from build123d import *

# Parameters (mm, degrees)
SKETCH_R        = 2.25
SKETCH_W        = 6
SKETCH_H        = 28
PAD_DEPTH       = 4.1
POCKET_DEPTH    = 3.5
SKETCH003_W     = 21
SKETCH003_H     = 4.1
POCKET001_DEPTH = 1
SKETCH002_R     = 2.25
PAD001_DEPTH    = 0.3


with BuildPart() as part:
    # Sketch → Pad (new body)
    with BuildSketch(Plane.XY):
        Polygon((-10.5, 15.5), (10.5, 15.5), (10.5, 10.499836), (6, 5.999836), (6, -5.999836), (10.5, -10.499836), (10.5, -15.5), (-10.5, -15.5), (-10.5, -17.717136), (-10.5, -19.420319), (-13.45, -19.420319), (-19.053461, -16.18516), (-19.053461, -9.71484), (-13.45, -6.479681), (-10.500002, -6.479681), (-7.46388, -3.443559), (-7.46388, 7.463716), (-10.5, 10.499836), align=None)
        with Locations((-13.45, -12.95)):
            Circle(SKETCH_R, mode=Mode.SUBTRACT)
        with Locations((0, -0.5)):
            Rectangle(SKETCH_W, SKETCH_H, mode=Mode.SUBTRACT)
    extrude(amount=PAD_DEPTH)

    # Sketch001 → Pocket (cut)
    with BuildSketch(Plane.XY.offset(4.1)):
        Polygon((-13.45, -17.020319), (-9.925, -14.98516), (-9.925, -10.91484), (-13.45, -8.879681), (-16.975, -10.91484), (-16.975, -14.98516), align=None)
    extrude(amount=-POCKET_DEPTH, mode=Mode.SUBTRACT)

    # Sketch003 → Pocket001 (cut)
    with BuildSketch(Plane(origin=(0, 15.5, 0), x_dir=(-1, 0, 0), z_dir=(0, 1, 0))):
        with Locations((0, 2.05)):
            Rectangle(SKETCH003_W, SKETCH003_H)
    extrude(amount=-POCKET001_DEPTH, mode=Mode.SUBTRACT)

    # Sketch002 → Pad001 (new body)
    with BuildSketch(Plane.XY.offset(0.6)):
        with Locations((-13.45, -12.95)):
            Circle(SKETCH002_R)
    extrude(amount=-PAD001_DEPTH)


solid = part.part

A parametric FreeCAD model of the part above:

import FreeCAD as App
import Part
import Sketcher

V = App.Vector
Q = App.Units.Quantity

doc = App.newDocument("Part")
body = doc.addObject("PartDesign::Body", "Body")

# Sketch on XY plane
sketch1 = doc.addObject("Sketcher::SketchObject", "Sketch")
body.addObject(sketch1)
sketch1.AttachmentSupport = (doc.XY_Plane, [""])
sketch1.MapMode = "FlatFace"
sketch1.addGeometry([
    Part.LineSegment(V(10.5, 15.5, 0), V(-10.5, 15.5, 0)),  # 0
    Part.LineSegment(V(-10.5, 15.5, 0), V(-10.5, 10.5, 0)),  # 1
    Part.LineSegment(V(-10.5, 10.5, 0), V(-7.5, 7.5, 0)),  # 2
    Part.LineSegment(V(-7.5, 7.5, 0), V(-7.5, -3.4, 0)),  # 3
    Part.LineSegment(V(-7.5, -3.4, 0), V(-10.5, -6.5, 0)),  # 4
    Part.LineSegment(V(-10.5, -6.5, 0), V(-13.4, -6.5, 0)),  # 5
    Part.LineSegment(V(-13.4, -6.5, 0), V(-19.1, -9.7, 0)),  # 6
    Part.LineSegment(V(-19.1, -9.7, 0), V(-19.1, -16.2, 0)),  # 7
    Part.LineSegment(V(-19.1, -16.2, 0), V(-13.4, -19.4, 0)),  # 8
    Part.LineSegment(V(-13.4, -19.4, 0), V(-10.5, -19.4, 0)),  # 9
    Part.LineSegment(V(-10.5, -19.4, 0), V(-10.5, -15.5, 0)),  # 10
    Part.LineSegment(V(-10.5, -15.5, 0), V(10.5, -15.5, 0)),  # 11
    Part.LineSegment(V(10.5, -15.5, 0), V(10.5, -10.5, 0)),  # 12
    Part.LineSegment(V(10.5, -10.5, 0), V(6, -6, 0)),  # 13
    Part.LineSegment(V(6, -6, 0), V(6, 6, 0)),  # 14
    Part.LineSegment(V(6, 6, 0), V(10.5, 10.5, 0)),  # 15
    Part.LineSegment(V(10.5, 10.5, 0), V(10.5, 15.5, 0)),  # 16
    Part.Circle(V(-13.4, -12.9, 0), V(0, 0, 1), 2.2),  # 17
    Part.LineSegment(V(-3, -14.5, 0), V(-3, 13.5, 0)),  # 18
    Part.LineSegment(V(-3, 13.5, 0), V(3, 13.5, 0)),  # 19
    Part.LineSegment(V(3, 13.5, 0), V(3, -14.5, 0)),  # 20
    Part.LineSegment(V(3, -14.5, 0), V(-3, -14.5, 0)),  # 21
], False)
sketch1.addConstraint([
    Sketcher.Constraint("Coincident", 0, 2, 1, 1),
    Sketcher.Constraint("Coincident", 1, 2, 2, 1),
    Sketcher.Constraint("Coincident", 2, 2, 3, 1),
    Sketcher.Constraint("Coincident", 3, 2, 4, 1),
    Sketcher.Constraint("Coincident", 4, 2, 5, 1),
    Sketcher.Constraint("Coincident", 5, 2, 6, 1),
    Sketcher.Constraint("Coincident", 6, 2, 7, 1),
    Sketcher.Constraint("Coincident", 7, 2, 8, 1),
    Sketcher.Constraint("Coincident", 8, 2, 9, 1),
    Sketcher.Constraint("Coincident", 9, 2, 10, 1),
    Sketcher.Constraint("Coincident", 10, 2, 11, 1),
    Sketcher.Constraint("Coincident", 11, 2, 12, 1),
    Sketcher.Constraint("Coincident", 12, 2, 13, 1),
    Sketcher.Constraint("Coincident", 13, 2, 14, 1),
    Sketcher.Constraint("Coincident", 14, 2, 15, 1),
    Sketcher.Constraint("Coincident", 15, 2, 16, 1),
    Sketcher.Constraint("Coincident", 16, 2, 0, 1),
    Sketcher.Constraint("Coincident", 18, 2, 19, 1),
    Sketcher.Constraint("Coincident", 19, 2, 20, 1),
    Sketcher.Constraint("Coincident", 20, 2, 21, 1),
    Sketcher.Constraint("Coincident", 21, 2, 18, 1),
    Sketcher.Constraint("Horizontal", 0),
    Sketcher.Constraint("Vertical", 1),
    Sketcher.Constraint("Vertical", 3),
    Sketcher.Constraint("Horizontal", 5),
    Sketcher.Constraint("Vertical", 7),
    Sketcher.Constraint("Horizontal", 9),
    Sketcher.Constraint("Vertical", 10),
    Sketcher.Constraint("Horizontal", 11),
    Sketcher.Constraint("Vertical", 12),
    Sketcher.Constraint("Vertical", 14),
    Sketcher.Constraint("Vertical", 16),
    Sketcher.Constraint("Vertical", 18),
    Sketcher.Constraint("Horizontal", 19),
    Sketcher.Constraint("Vertical", 20),
    Sketcher.Constraint("Horizontal", 21),
    Sketcher.Constraint("Symmetric", 0, 2, 11, 2, -1, 1),
    Sketcher.Constraint("Symmetric", 1, 2, 15, 2, -2),
    Sketcher.Constraint("Perpendicular", 2, 4),
    Sketcher.Constraint("Perpendicular", 4, 13),
    Sketcher.Constraint("Perpendicular", 13, 15),
    Sketcher.Constraint("Vertical", 17, 3, 5, 2),
    Sketcher.Constraint("Vertical", 5, 2, 8, 2),
    Sketcher.Constraint("Vertical", 1, 2, 9, 2),
    Sketcher.Constraint("Equal", 1, 12),
    Sketcher.Constraint("Equal", 6, 8),
    Sketcher.Constraint("Equal", 13, 15),
    Sketcher.Constraint("Diameter", 17, 4.5),
    Sketcher.Constraint("DistanceX", 0, 2, 0, 1, 21.0),
    Sketcher.Constraint("DistanceX", 19, 1, 19, 2, 6.0),
    Sketcher.Constraint("DistanceY", 18, 1, 18, 2, 28.0),
    Sketcher.Constraint("Angle", 6, Q("-150.000005 deg")),
    Sketcher.Constraint("DistanceX", -1, 1, 13, 2, 6.0),
    Sketcher.Constraint("DistanceX", 18, 2, -1, 1, 3.0),
    Sketcher.Constraint("DistanceY", 18, 2, 0, 2, 2.0),
    Sketcher.Constraint("DistanceY", 11, 2, 20, 2, 1.0),
    Sketcher.Constraint("DistanceX", 9, 1, 9, 2, 2.95),
    Sketcher.Constraint("DistanceY", 17, 3, -1, 1, 12.95),
    Sketcher.Constraint("DistanceY", 7, 2, 7, 1, 6.47032),
    Sketcher.Constraint("DistanceY", 10, 1, 10, 2, 3.920319),
    Sketcher.Constraint("DistanceY", 7, 2, 3, 2, 12.741601),
    Sketcher.Constraint("Distance", 6, 6.470319),
    Sketcher.Constraint("DistanceX", 5, 2, 5, 1, 2.949998),
    Sketcher.Constraint("DistanceY", 1, 2, 1, 1, 5.000164),
])
pad1 = doc.addObject("PartDesign::Pad", "Pad")
body.addObject(pad1)
pad1.Profile = sketch1
pad1.Length = 4.1

# Sketch on XY plane
sketch2 = doc.addObject("Sketcher::SketchObject", "Sketch001")
body.addObject(sketch2)
sketch2.AttachmentSupport = (doc.XY_Plane, [""])
sketch2.MapMode = "FlatFace"
sketch2.AttachmentOffset = App.Placement(V(0, 0, 4.1), App.Rotation())
sketch2.addGeometry([
    Part.LineSegment(V(-13.4, -17, 0), V(-9.9, -15, 0)),  # 0
    Part.LineSegment(V(-9.9, -15, 0), V(-9.9, -10.9, 0)),  # 1
    Part.LineSegment(V(-9.9, -10.9, 0), V(-13.4, -8.9, 0)),  # 2
    Part.LineSegment(V(-13.4, -8.9, 0), V(-17, -10.9, 0)),  # 3
    Part.LineSegment(V(-17, -10.9, 0), V(-17, -15, 0)),  # 4
    Part.LineSegment(V(-17, -15, 0), V(-13.4, -17, 0)),  # 5
], False)
sketch2.addConstraint([
    Sketcher.Constraint("Coincident", 0, 2, 1, 1),
    Sketcher.Constraint("Coincident", 1, 2, 2, 1),
    Sketcher.Constraint("Coincident", 2, 2, 3, 1),
    Sketcher.Constraint("Coincident", 3, 2, 4, 1),
    Sketcher.Constraint("Coincident", 4, 2, 5, 1),
    Sketcher.Constraint("Coincident", 5, 2, 0, 1),
    Sketcher.Constraint("Vertical", 1),
    Sketcher.Constraint("Vertical", 4),
    Sketcher.Constraint("Parallel", 0, 3),
    Sketcher.Constraint("Parallel", 2, 5),
    Sketcher.Constraint("Horizontal", 1, 2, 3, 2),
    Sketcher.Constraint("Horizontal", 0, 2, 4, 2),
    Sketcher.Constraint("Vertical", 2, 2, 5, 2),
    Sketcher.Constraint("Angle", 0, Q("29.999991 deg")),
    Sketcher.Constraint("DistanceX", 2, 2, -1, 1, 13.45),
    Sketcher.Constraint("DistanceX", 3, 2, 1, 2, 7.05),
    Sketcher.Constraint("DistanceY", 1, 1, 1, 2, 4.07032),
    Sketcher.Constraint("DistanceY", 0, 2, -1, 1, 14.98516),
])
pocket1 = doc.addObject("PartDesign::Pocket", "Pocket")
body.addObject(pocket1)
pocket1.Profile = sketch2
pocket1.Length = 3.5

# Sketch on XZ plane
sketch3 = doc.addObject("Sketcher::SketchObject", "Sketch002")
body.addObject(sketch3)
sketch3.AttachmentSupport = (doc.XZ_Plane, [""])
sketch3.MapMode = "FlatFace"
sketch3.AttachmentOffset = App.Placement(V(0, 0, -15.5), App.Rotation())
sketch3.addGeometry([
    Part.LineSegment(V(10.5, 4.1, 0), V(10.5, 0, 0)),
    Part.LineSegment(V(10.5, 0, 0), V(-10.5, 0, 0)),
    Part.LineSegment(V(-10.5, 0, 0), V(-10.5, 4.1, 0)),
    Part.LineSegment(V(-10.5, 4.1, 0), V(10.5, 4.1, 0)),
], False)
sketch3.addConstraint([
    Sketcher.Constraint("Coincident", 0, 2, 1, 1),
    Sketcher.Constraint("Coincident", 1, 2, 2, 1),
    Sketcher.Constraint("Coincident", 2, 2, 3, 1),
    Sketcher.Constraint("Coincident", 3, 2, 0, 1),
    Sketcher.Constraint("Vertical", 0),
    Sketcher.Constraint("Horizontal", 1),
    Sketcher.Constraint("Vertical", 2),
    Sketcher.Constraint("Horizontal", 3),
    Sketcher.Constraint("Symmetric", 0, 2, 1, 2, -1, 1),
    Sketcher.Constraint("DistanceX", 1, 2, 1, 1, 21.0),
    Sketcher.Constraint("DistanceY", 0, 2, 0, 1, 4.1),
])
pocket2 = doc.addObject("PartDesign::Pocket", "Pocket001")
body.addObject(pocket2)
pocket2.Profile = sketch3
pocket2.Length = 1
pocket2.Reversed = True

# Sketch on XY plane
sketch4 = doc.addObject("Sketcher::SketchObject", "Sketch003")
body.addObject(sketch4)
sketch4.AttachmentSupport = (doc.XY_Plane, [""])
sketch4.MapMode = "FlatFace"
sketch4.AttachmentOffset = App.Placement(V(0, 0, 0.6), App.Rotation())
sketch4.addGeometry(Part.Circle(V(-13.4, -12.9, 0), V(0, 0, 1), 2.2), False)
sketch4.addConstraint([
    Sketcher.Constraint("Diameter", 0, 4.5),
    Sketcher.Constraint("DistanceX", 0, 3, -1, 1, 13.45),
    Sketcher.Constraint("DistanceY", 0, 3, -1, 1, 12.95),
])
pad2 = doc.addObject("PartDesign::Pad", "Pad001")
body.addObject(pad2)
pad2.Profile = sketch4
pad2.Length = 0.3
pad2.Reversed = True

doc.recompute()
